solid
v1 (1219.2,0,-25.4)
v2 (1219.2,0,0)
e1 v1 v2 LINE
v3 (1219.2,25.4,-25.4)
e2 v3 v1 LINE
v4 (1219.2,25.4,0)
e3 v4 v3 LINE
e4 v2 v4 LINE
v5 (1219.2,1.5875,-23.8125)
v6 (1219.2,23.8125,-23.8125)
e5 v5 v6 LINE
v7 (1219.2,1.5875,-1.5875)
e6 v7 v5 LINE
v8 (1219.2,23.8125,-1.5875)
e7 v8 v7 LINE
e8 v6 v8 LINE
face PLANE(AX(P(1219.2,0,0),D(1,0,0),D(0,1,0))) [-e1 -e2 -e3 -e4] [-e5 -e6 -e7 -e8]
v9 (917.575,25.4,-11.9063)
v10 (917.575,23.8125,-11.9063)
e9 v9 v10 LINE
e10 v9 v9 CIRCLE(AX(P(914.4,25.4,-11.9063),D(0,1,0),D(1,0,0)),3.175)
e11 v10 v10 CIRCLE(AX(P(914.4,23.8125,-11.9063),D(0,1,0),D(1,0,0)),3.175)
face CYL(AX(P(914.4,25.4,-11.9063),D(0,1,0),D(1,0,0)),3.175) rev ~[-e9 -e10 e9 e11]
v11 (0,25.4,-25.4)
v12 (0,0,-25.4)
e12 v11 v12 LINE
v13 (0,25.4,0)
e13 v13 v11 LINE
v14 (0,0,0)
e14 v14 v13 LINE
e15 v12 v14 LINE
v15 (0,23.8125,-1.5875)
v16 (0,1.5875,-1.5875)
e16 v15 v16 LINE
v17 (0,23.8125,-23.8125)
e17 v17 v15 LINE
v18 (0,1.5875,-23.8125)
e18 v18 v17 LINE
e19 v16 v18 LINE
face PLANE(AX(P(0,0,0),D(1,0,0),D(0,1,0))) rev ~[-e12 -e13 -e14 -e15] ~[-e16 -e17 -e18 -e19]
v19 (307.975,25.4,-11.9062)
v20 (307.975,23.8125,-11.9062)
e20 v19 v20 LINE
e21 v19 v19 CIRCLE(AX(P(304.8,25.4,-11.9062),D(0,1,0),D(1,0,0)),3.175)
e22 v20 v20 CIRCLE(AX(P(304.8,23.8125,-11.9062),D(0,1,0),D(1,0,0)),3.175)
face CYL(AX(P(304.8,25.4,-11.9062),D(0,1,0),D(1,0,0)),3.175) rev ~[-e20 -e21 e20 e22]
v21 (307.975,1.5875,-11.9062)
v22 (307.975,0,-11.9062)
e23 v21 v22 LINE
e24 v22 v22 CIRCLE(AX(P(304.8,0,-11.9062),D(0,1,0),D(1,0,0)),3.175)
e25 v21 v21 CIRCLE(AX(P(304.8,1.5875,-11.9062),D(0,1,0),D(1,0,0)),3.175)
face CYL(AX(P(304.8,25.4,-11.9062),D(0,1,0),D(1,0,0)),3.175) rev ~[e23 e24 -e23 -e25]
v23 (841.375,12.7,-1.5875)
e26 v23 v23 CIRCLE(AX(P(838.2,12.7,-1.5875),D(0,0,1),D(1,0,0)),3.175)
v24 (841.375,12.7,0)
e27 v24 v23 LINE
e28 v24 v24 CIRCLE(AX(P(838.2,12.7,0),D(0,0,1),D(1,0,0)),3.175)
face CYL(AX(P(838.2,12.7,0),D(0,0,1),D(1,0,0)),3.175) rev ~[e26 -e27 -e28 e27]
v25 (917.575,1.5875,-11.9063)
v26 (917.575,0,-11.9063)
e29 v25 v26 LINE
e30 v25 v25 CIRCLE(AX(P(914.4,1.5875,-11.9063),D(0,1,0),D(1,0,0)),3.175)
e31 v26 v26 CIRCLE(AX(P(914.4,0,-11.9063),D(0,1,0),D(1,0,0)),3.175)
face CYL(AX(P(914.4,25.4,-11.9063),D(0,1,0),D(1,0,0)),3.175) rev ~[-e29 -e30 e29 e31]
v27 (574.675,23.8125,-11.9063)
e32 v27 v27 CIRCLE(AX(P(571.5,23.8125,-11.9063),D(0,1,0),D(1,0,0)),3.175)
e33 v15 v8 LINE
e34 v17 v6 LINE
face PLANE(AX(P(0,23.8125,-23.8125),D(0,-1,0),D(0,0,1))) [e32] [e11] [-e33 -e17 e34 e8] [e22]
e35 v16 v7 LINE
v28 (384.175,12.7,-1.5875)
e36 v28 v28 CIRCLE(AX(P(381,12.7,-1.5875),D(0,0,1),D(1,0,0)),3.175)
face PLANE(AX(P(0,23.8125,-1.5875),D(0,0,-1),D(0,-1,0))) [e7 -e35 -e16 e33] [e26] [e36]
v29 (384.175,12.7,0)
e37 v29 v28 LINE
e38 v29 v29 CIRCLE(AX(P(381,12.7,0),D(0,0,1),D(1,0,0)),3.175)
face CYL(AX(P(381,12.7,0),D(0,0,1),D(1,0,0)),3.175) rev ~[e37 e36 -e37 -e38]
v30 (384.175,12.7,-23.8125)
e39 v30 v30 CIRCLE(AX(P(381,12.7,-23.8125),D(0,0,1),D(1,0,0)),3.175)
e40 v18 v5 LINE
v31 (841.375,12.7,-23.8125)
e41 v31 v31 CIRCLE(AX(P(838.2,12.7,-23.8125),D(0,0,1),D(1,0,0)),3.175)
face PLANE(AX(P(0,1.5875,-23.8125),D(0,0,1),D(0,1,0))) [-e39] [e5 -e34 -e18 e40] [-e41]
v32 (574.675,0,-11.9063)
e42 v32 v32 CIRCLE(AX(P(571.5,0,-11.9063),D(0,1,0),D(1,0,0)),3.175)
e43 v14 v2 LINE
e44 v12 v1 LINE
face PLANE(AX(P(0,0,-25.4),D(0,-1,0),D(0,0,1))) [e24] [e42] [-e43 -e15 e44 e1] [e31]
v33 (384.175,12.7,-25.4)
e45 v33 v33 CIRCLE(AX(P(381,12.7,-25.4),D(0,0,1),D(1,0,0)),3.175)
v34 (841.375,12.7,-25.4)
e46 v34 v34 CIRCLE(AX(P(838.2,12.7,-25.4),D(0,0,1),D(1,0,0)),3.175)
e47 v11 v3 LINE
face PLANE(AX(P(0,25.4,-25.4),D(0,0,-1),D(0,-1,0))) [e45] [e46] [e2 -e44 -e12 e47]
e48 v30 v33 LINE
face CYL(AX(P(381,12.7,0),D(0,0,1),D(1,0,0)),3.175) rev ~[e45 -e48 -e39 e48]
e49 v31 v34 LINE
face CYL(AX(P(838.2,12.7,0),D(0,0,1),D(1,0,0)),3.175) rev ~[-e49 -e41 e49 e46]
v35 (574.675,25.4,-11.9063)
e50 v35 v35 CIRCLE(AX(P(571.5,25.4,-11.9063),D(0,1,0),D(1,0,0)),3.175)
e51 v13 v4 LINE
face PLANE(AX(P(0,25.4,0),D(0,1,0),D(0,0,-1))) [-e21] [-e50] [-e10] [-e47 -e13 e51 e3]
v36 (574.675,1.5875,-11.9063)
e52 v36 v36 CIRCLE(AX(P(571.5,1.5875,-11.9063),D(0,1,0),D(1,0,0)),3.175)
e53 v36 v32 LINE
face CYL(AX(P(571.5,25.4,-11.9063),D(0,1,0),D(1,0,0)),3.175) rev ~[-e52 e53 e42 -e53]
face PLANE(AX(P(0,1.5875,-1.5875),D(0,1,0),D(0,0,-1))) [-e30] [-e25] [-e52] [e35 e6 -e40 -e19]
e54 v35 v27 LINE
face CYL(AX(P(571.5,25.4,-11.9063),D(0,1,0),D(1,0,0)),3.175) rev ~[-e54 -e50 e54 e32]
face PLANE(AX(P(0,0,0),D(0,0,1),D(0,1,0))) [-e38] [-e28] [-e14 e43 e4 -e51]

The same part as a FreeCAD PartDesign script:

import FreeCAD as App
import Part
import Sketcher

V = App.Vector
Q = App.Units.Quantity


def add_polygon(sketch, points):
    """Adds a closed chain of lines whose ends are joined by coincident constraints."""
    first, n = sketch.GeometryCount, len(points)
    for a, b in zip(points, points[1:] + points[:1]):
        sketch.addGeometry(Part.LineSegment(App.Vector(*a, 0), App.Vector(*b, 0)), False)
    for i in range(n):
        sketch.addConstraint(Sketcher.Constraint("Coincident", first + i, 2, first + (i + 1) % n, 1))

doc = App.newDocument("Part")
body = doc.addObject("PartDesign::Body", "Body")

# Sketch on YZ plane
sketch1 = body.newObject("Sketcher::SketchObject", "Sketch")
sketch1.AttachmentSupport = (doc.getObject("YZ_Plane"), [""])
sketch1.MapMode = "FlatFace"
add_polygon(sketch1, [(25.4, 0), (0, 0), (0, -25.4), (25.4, -25.4)])  # lines 0-3
add_polygon(sketch1, [(23.8125, -1.5875), (23.8125, -23.8125), (1.5875, -23.8125), (1.5875, -1.5875)])  # lines 4-7
sketch1.addConstraint([
    Sketcher.Constraint("Horizontal", 0),
    Sketcher.Constraint("Vertical", 1),
    Sketcher.Constraint("Horizontal", 2),
    Sketcher.Constraint("Vertical", 3),
    Sketcher.Constraint("Vertical", 4),
    Sketcher.Constraint("Horizontal", 5),
    Sketcher.Constraint("Vertical", 6),
    Sketcher.Constraint("Horizontal", 7),
    Sketcher.Constraint("Coincident", 0, 2, -1, 1),
    Sketcher.Constraint("Equal", 2, 1),
    Sketcher.Constraint("Equal", 7, 4),
    Sketcher.Constraint("DistanceX", 0, 2, 0, 1, Q("1 in")),
    Sketcher.Constraint("DistanceX", -1, 1, 5, 2, Q("0.0625 in")),
    Sketcher.Constraint("DistanceY", 6, 2, -1, 1, Q("0.0625 in")),
    Sketcher.Constraint("DistanceX", 4, 2, 2, 2, Q("0.0625 in")),
])
pad1 = body.newObject("PartDesign::Pad", "Pad")
pad1.Profile = sketch1
pad1.Length = Q("48 in")

# Sketch on XZ plane
sketch2 = body.newObject("Sketcher::SketchObject", "Sketch001")
sketch2.AttachmentSupport = (doc.getObject("XZ_Plane"), [""])
sketch2.MapMode = "FlatFace"
sketch2.AttachmentOffset = App.Placement(V(0, 0, -1 * 25.4), App.Rotation())
sketch2.addGeometry([
    Part.Circle(V(304.8, -11.9062, 0), V(0, 0, 1), 3.175),
    Part.Circle(V(914.4, -11.9063, 0), V(0, 0, 1), 3.175),
    Part.Circle(V(571.5, -11.9063, 0), V(0, 0, 1), 3.175),
], False)
sketch2.addConstraint([
    Sketcher.Constraint("Equal", 0, 1),
    Sketcher.Constraint("Equal", 1, 2),
    Sketcher.Constraint("Horizontal", 0, 3, 1, 3),
    Sketcher.Constraint("Horizontal", 1, 3, 2, 3),
    Sketcher.Constraint("Diameter", 0, Q("0.25 in")),
    Sketcher.Constraint("DistanceX", -1, 1, 0, 3, Q("12 in")),
    Sketcher.Constraint("DistanceX", -1, 1, 1, 3, Q("36 in")),
    Sketcher.Constraint("DistanceX", -1, 1, 2, 3, Q("22.5 in")),
    Sketcher.Constraint("DistanceY", 0, 3, -1, 1, Q("0.468748 in")),
])
pocket1 = body.newObject("PartDesign::Pocket", "Pocket")
pocket1.Profile = sketch2
pocket1.Length = Q("1 in")
pocket1.Reversed = True

# Sketch on XY plane
sketch3 = body.newObject("Sketcher::SketchObject", "Sketch002")
sketch3.AttachmentSupport = (doc.getObject("XY_Plane"), [""])
sketch3.MapMode = "FlatFace"
sketch3.addGeometry([
    Part.Circle(V(838.2, 12.7, 0), V(0, 0, 1), 3.175),
    Part.Circle(V(381, 12.7, 0), V(0, 0, 1), 3.175),
], False)
sketch3.addConstraint([
    Sketcher.Constraint("Equal", 0, 1),
    Sketcher.Constraint("Horizontal", 0, 3, 1, 3),
    Sketcher.Constraint("Diameter", 0, Q("0.25 in")),
    Sketcher.Constraint("DistanceX", -1, 1, 0, 3, Q("33 in")),
    Sketcher.Constraint("DistanceX", -1, 1, 1, 3, Q("15 in")),
    Sketcher.Constraint("DistanceY", -1, 1, 0, 3, Q("0.5 in")),
])
pocket2 = body.newObject("PartDesign::Pocket", "Pocket001")
pocket2.Profile = sketch3
pocket2.Length = Q("1 in")

doc.recompute()
